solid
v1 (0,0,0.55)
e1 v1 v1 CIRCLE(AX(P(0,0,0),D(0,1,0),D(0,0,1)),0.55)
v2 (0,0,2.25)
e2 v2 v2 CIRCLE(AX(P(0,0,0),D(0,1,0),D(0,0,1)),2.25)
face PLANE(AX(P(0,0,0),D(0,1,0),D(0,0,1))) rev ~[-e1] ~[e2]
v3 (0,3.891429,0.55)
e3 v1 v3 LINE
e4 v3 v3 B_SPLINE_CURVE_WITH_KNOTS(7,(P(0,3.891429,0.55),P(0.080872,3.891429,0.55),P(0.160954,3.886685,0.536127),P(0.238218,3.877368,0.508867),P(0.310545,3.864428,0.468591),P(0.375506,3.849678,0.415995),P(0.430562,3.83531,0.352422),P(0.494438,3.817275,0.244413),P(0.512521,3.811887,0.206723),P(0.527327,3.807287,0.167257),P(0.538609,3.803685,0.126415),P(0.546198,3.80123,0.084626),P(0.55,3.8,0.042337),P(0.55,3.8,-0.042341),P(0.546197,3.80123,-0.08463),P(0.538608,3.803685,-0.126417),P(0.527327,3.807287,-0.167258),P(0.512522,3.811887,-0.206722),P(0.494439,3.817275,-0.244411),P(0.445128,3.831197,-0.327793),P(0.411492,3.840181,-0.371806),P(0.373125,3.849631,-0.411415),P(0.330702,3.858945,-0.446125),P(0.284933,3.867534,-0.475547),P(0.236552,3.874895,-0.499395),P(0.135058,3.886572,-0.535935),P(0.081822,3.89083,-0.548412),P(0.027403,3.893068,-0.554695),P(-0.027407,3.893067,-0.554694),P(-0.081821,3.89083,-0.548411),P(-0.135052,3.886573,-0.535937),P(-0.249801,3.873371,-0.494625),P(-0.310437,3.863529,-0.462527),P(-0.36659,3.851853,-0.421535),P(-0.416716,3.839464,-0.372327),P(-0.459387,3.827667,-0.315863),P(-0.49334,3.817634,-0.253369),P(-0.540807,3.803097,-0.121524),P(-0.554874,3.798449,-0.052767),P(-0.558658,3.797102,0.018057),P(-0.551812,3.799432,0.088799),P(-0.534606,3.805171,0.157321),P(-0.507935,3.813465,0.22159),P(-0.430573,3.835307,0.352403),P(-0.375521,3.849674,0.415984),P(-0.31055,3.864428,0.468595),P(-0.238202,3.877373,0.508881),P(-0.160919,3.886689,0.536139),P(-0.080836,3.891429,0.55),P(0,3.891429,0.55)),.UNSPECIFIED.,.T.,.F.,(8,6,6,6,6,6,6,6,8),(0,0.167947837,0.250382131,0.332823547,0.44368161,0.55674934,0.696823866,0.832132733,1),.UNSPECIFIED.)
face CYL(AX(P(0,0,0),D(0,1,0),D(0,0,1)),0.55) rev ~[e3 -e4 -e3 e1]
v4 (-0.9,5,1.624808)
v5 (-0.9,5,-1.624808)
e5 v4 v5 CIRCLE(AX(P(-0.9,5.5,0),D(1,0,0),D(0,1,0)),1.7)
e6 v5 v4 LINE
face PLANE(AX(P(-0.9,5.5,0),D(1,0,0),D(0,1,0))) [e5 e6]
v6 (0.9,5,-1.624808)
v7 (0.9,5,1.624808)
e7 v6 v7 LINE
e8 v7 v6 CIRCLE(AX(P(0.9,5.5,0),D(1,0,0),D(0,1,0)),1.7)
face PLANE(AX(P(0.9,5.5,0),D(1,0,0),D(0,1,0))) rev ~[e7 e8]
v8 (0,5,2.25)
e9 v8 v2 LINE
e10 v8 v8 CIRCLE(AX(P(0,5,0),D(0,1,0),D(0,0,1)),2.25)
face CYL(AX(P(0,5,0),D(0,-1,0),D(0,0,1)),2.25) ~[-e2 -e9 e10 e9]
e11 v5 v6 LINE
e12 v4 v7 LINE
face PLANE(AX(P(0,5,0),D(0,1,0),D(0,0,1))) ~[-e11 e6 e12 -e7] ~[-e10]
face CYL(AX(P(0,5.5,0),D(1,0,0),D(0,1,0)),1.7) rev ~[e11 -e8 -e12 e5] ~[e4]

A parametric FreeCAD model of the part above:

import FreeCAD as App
import Part
import Sketcher

V = App.Vector
Q = App.Units.Quantity


def add_polygon(sketch, points):
    """Adds a closed chain of lines whose ends are joined by coincident constraints."""
    first, n = sketch.GeometryCount, len(points)
    for a, b in zip(points, points[1:] + points[:1]):
        sketch.addGeometry(Part.LineSegment(App.Vector(*a, 0), App.Vector(*b, 0)), False)
    for i in range(n):
        sketch.addConstraint(Sketcher.Constraint("Coincident", first + i, 2, first + (i + 1) % n, 1))

doc = App.newDocument("Part")
body = doc.addObject("PartDesign::Body", "Body")

# Sketch on YZ plane
sketch1 = doc.addObject("Sketcher::SketchObject", "Sketch")
body.addObject(sketch1)
sketch1.AttachmentSupport = (doc.YZ_Plane, [""])
sketch1.MapMode = "FlatFace"
add_polygon(sketch1, [(0, 2.2), (0, 0.6), (4, 0.6), (4, 0), (5, 0), (5, 2.2)])  # lines 0-5
sketch1.addConstraint([
    Sketcher.Constraint("Vertical", 0),
    Sketcher.Constraint("Horizontal", 1),
    Sketcher.Constraint("Vertical", 2),
    Sketcher.Constraint("Horizontal", 3),
    Sketcher.Constraint("Vertical", 4),
    Sketcher.Constraint("Horizontal", 5),
    Sketcher.Constraint("PointOnObject", 0, 2, -2),
    Sketcher.Constraint("PointOnObject", 2, 2, -1),
    Sketcher.Constraint("DistanceX", 1, 1, 1, 2, Q("4 mm")),
    Sketcher.Constraint("DistanceX", 3, 1, 3, 2, Q("1 mm")),
    Sketcher.Constraint("DistanceY", 0, 2, 0, 1, Q("1.7 mm")),
    Sketcher.Constraint("DistanceY", 2, 2, 2, 1, Q("0.55 mm")),
])
revolution = doc.addObject("PartDesign::Revolution", "Revolution")
body.addObject(revolution)
revolution.Profile = sketch1
revolution.ReferenceAxis = (sketch1, ["H_Axis"])
revolution.Angle = 360

# Sketch on YZ plane
sketch2 = doc.addObject("Sketcher::SketchObject", "Sketch001")
body.addObject(sketch2)
sketch2.AttachmentSupport = (doc.YZ_Plane, [""])
sketch2.MapMode = "FlatFace"
sketch2.addGeometry(Part.Circle(V(5.5, 0, 0), V(0, 0, 1), 1.7), False)
sketch2.addConstraint([
    Sketcher.Constraint("PointOnObject", 0, 3, -1),
    Sketcher.Constraint("Diameter", 0, Q("3.4 mm")),
    Sketcher.Constraint("DistanceX", -1, 1, 0, 3, Q("5.5 mm")),
])
pocket1 = doc.addObject("PartDesign::Pocket", "Pocket")
body.addObject(pocket1)
pocket1.Profile = sketch2
pocket1.Length = 1.8
pocket1.Midplane = True

doc.recompute()
